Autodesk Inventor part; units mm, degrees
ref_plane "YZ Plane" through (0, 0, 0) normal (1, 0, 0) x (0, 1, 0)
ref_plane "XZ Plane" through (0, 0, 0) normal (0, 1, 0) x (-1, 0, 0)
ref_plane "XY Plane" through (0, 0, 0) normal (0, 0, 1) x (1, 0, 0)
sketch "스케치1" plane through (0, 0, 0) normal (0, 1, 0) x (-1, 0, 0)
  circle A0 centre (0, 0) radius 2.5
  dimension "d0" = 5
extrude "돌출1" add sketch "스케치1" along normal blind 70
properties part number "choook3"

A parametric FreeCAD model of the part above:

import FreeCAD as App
import Part
import Sketcher

V = App.Vector
Q = App.Units.Quantity

doc = App.newDocument("Part")
body = doc.addObject("PartDesign::Body", "Body")

sketch1 = doc.addObject("Sketcher::SketchObject", "Sketch")
body.addObject(sketch1)
sketch1.AttachmentSupport = (doc.XZ_Plane, [""])
sketch1.MapMode = "FlatFace"
sketch1.addGeometry(Part.Circle(V(0, 0, 0), V(0, 0, 1), 2.5), False)
sketch1.addConstraint(Sketcher.Constraint("Coincident", 0, 3, -1, 1))
sketch1.addConstraint(Sketcher.Constraint("Diameter", 0, Q("5 mm")))
pad1 = doc.addObject("PartDesign::Pad", "Pad")
body.addObject(pad1)
pad1.Profile = sketch1
pad1.Length = 70
pad1.Reversed = True

doc.recompute()
